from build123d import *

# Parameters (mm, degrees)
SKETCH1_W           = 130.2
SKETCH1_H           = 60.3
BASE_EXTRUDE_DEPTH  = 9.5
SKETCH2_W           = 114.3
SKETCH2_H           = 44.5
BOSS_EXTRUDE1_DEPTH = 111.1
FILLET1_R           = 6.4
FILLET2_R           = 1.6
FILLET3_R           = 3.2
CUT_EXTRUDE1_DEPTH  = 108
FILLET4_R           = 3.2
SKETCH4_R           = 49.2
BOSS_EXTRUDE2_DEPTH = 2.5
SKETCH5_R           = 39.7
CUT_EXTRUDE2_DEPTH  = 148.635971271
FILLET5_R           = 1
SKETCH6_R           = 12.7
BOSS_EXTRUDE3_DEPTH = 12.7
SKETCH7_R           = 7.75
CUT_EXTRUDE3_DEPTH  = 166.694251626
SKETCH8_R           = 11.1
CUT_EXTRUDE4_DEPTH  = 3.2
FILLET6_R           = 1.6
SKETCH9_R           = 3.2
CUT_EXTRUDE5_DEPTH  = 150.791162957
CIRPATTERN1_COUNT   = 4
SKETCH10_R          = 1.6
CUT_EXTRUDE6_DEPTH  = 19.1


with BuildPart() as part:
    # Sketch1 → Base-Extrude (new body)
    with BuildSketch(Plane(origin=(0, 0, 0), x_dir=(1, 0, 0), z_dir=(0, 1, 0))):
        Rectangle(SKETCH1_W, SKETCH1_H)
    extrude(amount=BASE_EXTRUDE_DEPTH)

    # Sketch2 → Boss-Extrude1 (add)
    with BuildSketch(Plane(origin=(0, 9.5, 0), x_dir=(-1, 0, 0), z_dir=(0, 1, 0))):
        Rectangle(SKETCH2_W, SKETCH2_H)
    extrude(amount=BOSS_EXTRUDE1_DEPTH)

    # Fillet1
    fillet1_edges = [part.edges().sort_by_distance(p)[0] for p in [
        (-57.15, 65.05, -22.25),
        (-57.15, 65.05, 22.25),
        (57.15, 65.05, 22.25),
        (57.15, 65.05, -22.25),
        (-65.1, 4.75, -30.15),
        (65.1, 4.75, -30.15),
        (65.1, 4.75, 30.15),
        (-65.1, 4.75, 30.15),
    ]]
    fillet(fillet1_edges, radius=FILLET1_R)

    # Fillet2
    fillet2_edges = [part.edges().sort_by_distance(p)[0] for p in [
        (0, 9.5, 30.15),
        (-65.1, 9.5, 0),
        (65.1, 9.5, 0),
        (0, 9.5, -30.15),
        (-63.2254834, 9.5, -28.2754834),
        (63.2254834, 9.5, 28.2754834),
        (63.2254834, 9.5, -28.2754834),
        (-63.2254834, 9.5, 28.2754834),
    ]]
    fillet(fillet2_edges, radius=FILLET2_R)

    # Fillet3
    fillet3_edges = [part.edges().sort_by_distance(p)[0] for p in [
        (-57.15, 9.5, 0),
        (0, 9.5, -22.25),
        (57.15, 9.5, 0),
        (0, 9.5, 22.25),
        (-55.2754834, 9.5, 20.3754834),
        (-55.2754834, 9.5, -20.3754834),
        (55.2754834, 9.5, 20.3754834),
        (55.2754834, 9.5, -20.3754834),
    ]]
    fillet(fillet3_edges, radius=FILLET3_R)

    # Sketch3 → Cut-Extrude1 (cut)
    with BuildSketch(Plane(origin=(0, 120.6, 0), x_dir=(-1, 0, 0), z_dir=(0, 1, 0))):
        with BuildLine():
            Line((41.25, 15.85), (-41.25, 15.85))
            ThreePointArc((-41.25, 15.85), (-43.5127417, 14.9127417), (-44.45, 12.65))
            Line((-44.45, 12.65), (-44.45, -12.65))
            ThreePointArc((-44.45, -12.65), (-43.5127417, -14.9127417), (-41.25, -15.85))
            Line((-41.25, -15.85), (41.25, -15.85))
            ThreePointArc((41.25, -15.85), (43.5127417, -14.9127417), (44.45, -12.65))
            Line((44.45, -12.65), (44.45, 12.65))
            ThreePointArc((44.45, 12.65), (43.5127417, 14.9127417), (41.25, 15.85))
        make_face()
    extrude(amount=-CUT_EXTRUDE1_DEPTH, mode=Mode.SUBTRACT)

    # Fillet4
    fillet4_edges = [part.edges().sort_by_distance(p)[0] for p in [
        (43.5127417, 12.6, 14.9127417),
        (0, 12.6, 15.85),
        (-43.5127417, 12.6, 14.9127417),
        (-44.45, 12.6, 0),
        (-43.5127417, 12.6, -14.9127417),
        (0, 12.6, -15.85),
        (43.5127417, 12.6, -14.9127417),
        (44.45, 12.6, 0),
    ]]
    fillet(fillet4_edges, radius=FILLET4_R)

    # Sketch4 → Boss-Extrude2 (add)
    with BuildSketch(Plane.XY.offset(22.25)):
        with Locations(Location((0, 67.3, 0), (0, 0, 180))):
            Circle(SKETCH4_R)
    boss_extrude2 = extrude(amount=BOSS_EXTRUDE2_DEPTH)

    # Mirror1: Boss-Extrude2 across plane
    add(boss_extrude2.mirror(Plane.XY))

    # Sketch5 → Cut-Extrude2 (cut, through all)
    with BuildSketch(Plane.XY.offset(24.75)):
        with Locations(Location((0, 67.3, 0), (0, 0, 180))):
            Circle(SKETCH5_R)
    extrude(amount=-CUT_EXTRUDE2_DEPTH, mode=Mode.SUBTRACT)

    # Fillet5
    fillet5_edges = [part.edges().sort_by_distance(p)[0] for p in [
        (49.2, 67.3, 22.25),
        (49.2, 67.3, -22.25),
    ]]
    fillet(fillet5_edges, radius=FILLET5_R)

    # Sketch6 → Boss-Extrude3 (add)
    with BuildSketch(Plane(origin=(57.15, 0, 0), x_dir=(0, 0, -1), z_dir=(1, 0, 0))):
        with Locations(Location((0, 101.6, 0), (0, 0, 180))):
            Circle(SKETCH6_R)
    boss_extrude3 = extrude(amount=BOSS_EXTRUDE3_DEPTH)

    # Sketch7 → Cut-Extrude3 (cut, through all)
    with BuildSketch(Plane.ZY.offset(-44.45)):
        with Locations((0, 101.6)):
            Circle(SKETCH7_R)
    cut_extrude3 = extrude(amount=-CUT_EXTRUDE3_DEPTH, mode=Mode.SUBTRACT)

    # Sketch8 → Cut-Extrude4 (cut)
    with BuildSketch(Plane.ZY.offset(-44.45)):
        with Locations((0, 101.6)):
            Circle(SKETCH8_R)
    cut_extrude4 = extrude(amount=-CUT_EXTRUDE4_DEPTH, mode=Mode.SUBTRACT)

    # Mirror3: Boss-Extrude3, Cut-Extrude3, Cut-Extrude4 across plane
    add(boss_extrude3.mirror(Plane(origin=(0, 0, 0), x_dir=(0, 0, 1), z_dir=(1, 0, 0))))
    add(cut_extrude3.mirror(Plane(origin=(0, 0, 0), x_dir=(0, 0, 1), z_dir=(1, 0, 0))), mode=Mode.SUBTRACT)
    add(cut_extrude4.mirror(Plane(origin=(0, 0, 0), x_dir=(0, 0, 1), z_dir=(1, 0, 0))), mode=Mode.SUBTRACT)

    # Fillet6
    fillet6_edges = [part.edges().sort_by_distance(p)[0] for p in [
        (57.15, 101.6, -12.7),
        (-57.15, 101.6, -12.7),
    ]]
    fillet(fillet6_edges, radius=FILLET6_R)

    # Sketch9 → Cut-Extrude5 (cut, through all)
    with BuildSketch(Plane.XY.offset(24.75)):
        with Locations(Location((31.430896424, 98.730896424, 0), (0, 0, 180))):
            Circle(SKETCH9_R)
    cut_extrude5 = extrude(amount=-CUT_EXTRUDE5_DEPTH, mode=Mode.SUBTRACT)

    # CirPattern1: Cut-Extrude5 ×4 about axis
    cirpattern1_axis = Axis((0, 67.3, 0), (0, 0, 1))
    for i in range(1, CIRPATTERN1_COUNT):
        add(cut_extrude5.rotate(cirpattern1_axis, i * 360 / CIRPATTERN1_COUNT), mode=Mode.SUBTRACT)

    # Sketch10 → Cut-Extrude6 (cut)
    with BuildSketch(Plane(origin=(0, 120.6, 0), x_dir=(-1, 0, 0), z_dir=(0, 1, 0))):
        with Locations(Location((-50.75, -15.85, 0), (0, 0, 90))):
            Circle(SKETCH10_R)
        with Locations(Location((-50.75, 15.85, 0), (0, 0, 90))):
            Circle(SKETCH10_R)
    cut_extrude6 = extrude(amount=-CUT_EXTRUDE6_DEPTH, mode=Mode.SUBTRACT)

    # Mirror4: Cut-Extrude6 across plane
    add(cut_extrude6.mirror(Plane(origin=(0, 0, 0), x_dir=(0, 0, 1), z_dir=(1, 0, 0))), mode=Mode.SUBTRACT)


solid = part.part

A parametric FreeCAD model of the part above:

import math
import FreeCAD as App
import Part
import Sketcher
from FreeCAD import Vector
Q = App.Units.Quantity


def edges_at(feature, points):
    """Names of the edges that pass closest to the given points."""
    edges = feature.Shape.Edges
    near = lambda p: min(range(len(edges)), key=lambda i: edges[i].distToShape(Part.Vertex(*p))[0])
    return sorted({f"Edge{near(p) + 1}" for p in points})

doc = App.newDocument("Part")
body = doc.addObject("PartDesign::Body", "Body")

# Sketch on XZ plane
sketch1 = body.newObject("Sketcher::SketchObject", "Sketch")
sketch1.AttachmentSupport = (doc.getObject("XZ_Plane"), [""])
sketch1.MapMode = "FlatFace"
sketch1.addGeometry(Part.LineSegment(Vector(-65.1, -30.15, 0), Vector(-65.1, 30.15, 0)), False)
sketch1.addGeometry(Part.LineSegment(Vector(-65.1, 30.15, 0), Vector(65.1, 30.15, 0)), False)
sketch1.addGeometry(Part.LineSegment(Vector(65.1, 30.15, 0), Vector(65.1, -30.15, 0)), False)
sketch1.addGeometry(Part.LineSegment(Vector(65.1, -30.15, 0), Vector(-65.1, -30.15, 0)), False)
sketch1.addConstraint(Sketcher.Constraint("Coincident", 0, 2, 1, 1))
sketch1.addConstraint(Sketcher.Constraint("Coincident", 1, 2, 2, 1))
sketch1.addConstraint(Sketcher.Constraint("Coincident", 2, 2, 3, 1))
sketch1.addConstraint(Sketcher.Constraint("Coincident", 3, 2, 0, 1))
sketch1.addConstraint(Sketcher.Constraint("Vertical", 0))
sketch1.addConstraint(Sketcher.Constraint("Horizontal", 1))
sketch1.addConstraint(Sketcher.Constraint("Vertical", 2))
sketch1.addConstraint(Sketcher.Constraint("Horizontal", 3))
sketch1.addConstraint(Sketcher.Constraint("Symmetric", 0, 2, 2, 2, -1, 1))
sketch1.addConstraint(Sketcher.Constraint("DistanceX", 1, 1, 1, 2, Q("130.2 mm")))
sketch1.addConstraint(Sketcher.Constraint("DistanceY", 0, 1, 0, 2, Q("60.3 mm")))
pad1 = body.newObject("PartDesign::Pad", "Pad")
pad1.Profile = sketch1
pad1.Length = 9.5
pad1.Reversed = True

# Sketch on XZ plane
sketch2 = body.newObject("Sketcher::SketchObject", "Sketch001")
sketch2.AttachmentSupport = (doc.getObject("XZ_Plane"), [""])
sketch2.MapMode = "FlatFace"
sketch2.AttachmentOffset = App.Placement(Vector(0, 0, -9.5), App.Rotation())
sketch2.addGeometry(Part.LineSegment(Vector(57.15, 22.25, 0), Vector(57.15, -22.25, 0)), False)
sketch2.addGeometry(Part.LineSegment(Vector(57.15, -22.25, 0), Vector(-57.15, -22.25, 0)), False)
sketch2.addGeometry(Part.LineSegment(Vector(-57.15, -22.25, 0), Vector(-57.15, 22.25, 0)), False)
sketch2.addGeometry(Part.LineSegment(Vector(-57.15, 22.25, 0), Vector(57.15, 22.25, 0)), False)
sketch2.addConstraint(Sketcher.Constraint("Coincident", 0, 2, 1, 1))
sketch2.addConstraint(Sketcher.Constraint("Coincident", 1, 2, 2, 1))
sketch2.addConstraint(Sketcher.Constraint("Coincident", 2, 2, 3, 1))
sketch2.addConstraint(Sketcher.Constraint("Coincident", 3, 2, 0, 1))
sketch2.addConstraint(Sketcher.Constraint("Vertical", 0))
sketch2.addConstraint(Sketcher.Constraint("Horizontal", 1))
sketch2.addConstraint(Sketcher.Constraint("Vertical", 2))
sketch2.addConstraint(Sketcher.Constraint("Horizontal", 3))
sketch2.addConstraint(Sketcher.Constraint("Symmetric", 0, 2, 2, 2, -1, 1))
sketch2.addConstraint(Sketcher.Constraint("DistanceX", 1, 2, 1, 1, Q("114.3 mm")))
sketch2.addConstraint(Sketcher.Constraint("DistanceY", 0, 2, 0, 1, Q("44.5 mm")))
pad2 = body.newObject("PartDesign::Pad", "Pad001")
pad2.Profile = sketch2
pad2.Length = 111.1
pad2.Reversed = True
doc.recompute()

fillet = body.newObject("PartDesign::Fillet", "Fillet")
fillet.Base = (pad2, edges_at(pad2, [
    (-57.15, 65.05, -22.25),
    (-57.15, 65.05, 22.25),
    (57.15, 65.05, 22.25),
    (57.15, 65.05, -22.25),
    (-65.1, 4.75, -30.15),
    (65.1, 4.75, -30.15),
    (65.1, 4.75, 30.15),
    (-65.1, 4.75, 30.15),
]))
fillet.Radius = 6.4
doc.recompute()

fillet2 = body.newObject("PartDesign::Fillet", "Fillet001")
fillet2.Base = (fillet, edges_at(fillet, [
    (0, 9.5, 30.15),
    (-65.1, 9.5, 0),
    (65.1, 9.5, 0),
    (0, 9.5, -30.15),
    (-63.225, 9.5, -28.275),
    (63.225, 9.5, 28.275),
    (63.225, 9.5, -28.275),
    (-63.225, 9.5, 28.275),
]))
fillet2.Radius = 1.6
doc.recompute()

fillet3 = body.newObject("PartDesign::Fillet", "Fillet002")
fillet3.Base = (fillet2, edges_at(fillet2, [
    (-57.15, 9.5, 0),
    (0, 9.5, -22.25),
    (57.15, 9.5, 0),
    (0, 9.5, 22.25),
    (-55.275, 9.5, 20.375),
    (-55.275, 9.5, -20.375),
    (55.275, 9.5, 20.375),
    (55.275, 9.5, -20.375),
]))
fillet3.Radius = 3.2

# Sketch on XZ plane
sketch3 = body.newObject("Sketcher::SketchObject", "Sketch002")
sketch3.AttachmentSupport = (doc.getObject("XZ_Plane"), [""])
sketch3.MapMode = "FlatFace"
sketch3.AttachmentOffset = App.Placement(Vector(0, 0, -120.6), App.Rotation())
sketch3.addGeometry(Part.LineSegment(Vector(-41.25, 15.85, 0), Vector(41.25, 15.85, 0)), False)
sketch3.addGeometry(Part.ArcOfCircle(Part.Circle(Vector(41.25, 12.65, 0), Vector(0, 0, 1), 3.2), math.radians(0), math.radians(90)), False)
sketch3.addGeometry(Part.LineSegment(Vector(44.45, 12.65, 0), Vector(44.45, -12.65, 0)), False)
sketch3.addGeometry(Part.ArcOfCircle(Part.Circle(Vector(41.25, -12.65, 0), Vector(0, 0, 1), 3.2), math.radians(-90), math.radians(0)), False)
sketch3.addGeometry(Part.LineSegment(Vector(41.25, -15.85, 0), Vector(-41.25, -15.85, 0)), False)
sketch3.addGeometry(Part.ArcOfCircle(Part.Circle(Vector(-41.25, -12.65, 0), Vector(0, 0, 1), 3.2), math.radians(180), math.radians(270)), False)
sketch3.addGeometry(Part.LineSegment(Vector(-44.45, -12.65, 0), Vector(-44.45, 12.65, 0)), False)
sketch3.addGeometry(Part.ArcOfCircle(Part.Circle(Vector(-41.25, 12.65, 0), Vector(0, 0, 1), 3.2), math.radians(90), math.radians(180)), False)
sketch3.addConstraint(Sketcher.Constraint("Tangent", 0, 2, 1, 2))
sketch3.addConstraint(Sketcher.Constraint("Tangent", 1, 1, 2, 1))
sketch3.addConstraint(Sketcher.Constraint("Tangent", 2, 2, 3, 2))
sketch3.addConstraint(Sketcher.Constraint("Tangent", 3, 1, 4, 1))
sketch3.addConstraint(Sketcher.Constraint("Tangent", 4, 2, 5, 2))
sketch3.addConstraint(Sketcher.Constraint("Tangent", 5, 1, 6, 1))
sketch3.addConstraint(Sketcher.Constraint("Tangent", 6, 2, 7, 2))
sketch3.addConstraint(Sketcher.Constraint("Tangent", 7, 1, 0, 1))
sketch3.addConstraint(Sketcher.Constraint("Horizontal", 0))
sketch3.addConstraint(Sketcher.Constraint("Vertical", 2))
sketch3.addConstraint(Sketcher.Constraint("Horizontal", 4))
sketch3.addConstraint(Sketcher.Constraint("Vertical", 6))
sketch3.addConstraint(Sketcher.Constraint("Equal", 1, 3))
sketch3.addConstraint(Sketcher.Constraint("Equal", 3, 5))
sketch3.addConstraint(Sketcher.Constraint("Equal", 5, 7))
sketch3.addConstraint(Sketcher.Constraint("Symmetric", 1, 3, 5, 3, -1, 1))
sketch3.addConstraint(Sketcher.Constraint("Radius", 1, Q("3.2 mm")))
sketch3.addConstraint(Sketcher.Constraint("DistanceX", 0, 1, 0, 2, Q("82.5 mm")))
sketch3.addConstraint(Sketcher.Constraint("DistanceY", 2, 2, 2, 1, Q("25.3 mm")))
pocket1 = body.newObject("PartDesign::Pocket", "Pocket")
pocket1.Profile = sketch3
pocket1.Length = 108
pocket1.Reversed = True
doc.recompute()

fillet4 = body.newObject("PartDesign::Fillet", "Fillet003")
fillet4.Base = (pocket1, edges_at(pocket1, [
    (43.513, 12.6, 14.913),
    (0, 12.6, 15.85),
    (-43.513, 12.6, 14.913),
    (-44.45, 12.6, 0),
    (-43.513, 12.6, -14.913),
    (0, 12.6, -15.85),
    (43.513, 12.6, -14.913),
    (44.45, 12.6, 0),
]))
fillet4.Radius = 3.2

# Sketch on XY plane
sketch4 = body.newObject("Sketcher::SketchObject", "Sketch003")
sketch4.AttachmentSupport = (doc.getObject("XY_Plane"), [""])
sketch4.MapMode = "FlatFace"
sketch4.AttachmentOffset = App.Placement(Vector(0, 0, 22.25), App.Rotation())
sketch4.addGeometry(Part.Circle(Vector(0, 67.3, 0), Vector(0, 0, 1), 49.2), False)
sketch4.addConstraint(Sketcher.Constraint("PointOnObject", 0, 3, -2))
sketch4.addConstraint(Sketcher.Constraint("Diameter", 0, Q("98.4 mm")))
sketch4.addConstraint(Sketcher.Constraint("DistanceY", -1, 1, 0, 3, Q("67.3 mm")))
pad3 = body.newObject("PartDesign::Pad", "Pad002")
pad3.Profile = sketch4
pad3.Length = 2.5
doc.recompute()

mirrored = body.newObject("PartDesign::Mirrored", "Mirrored")
mirrored.Originals = [pad3]
mirrored.MirrorPlane = (doc.getObject("XY_Plane"), [""])
body.Tip = mirrored

# Sketch on XY plane
sketch5 = body.newObject("Sketcher::SketchObject", "Sketch004")
sketch5.AttachmentSupport = (doc.getObject("XY_Plane"), [""])
sketch5.MapMode = "FlatFace"
sketch5.AttachmentOffset = App.Placement(Vector(0, 0, 24.75), App.Rotation())
sketch5.addGeometry(Part.Circle(Vector(0, 67.3, 0), Vector(0, 0, 1), 39.7), False)
sketch5.addConstraint(Sketcher.Constraint("PointOnObject", 0, 3, -2))
sketch5.addConstraint(Sketcher.Constraint("Diameter", 0, Q("79.4 mm")))
sketch5.addConstraint(Sketcher.Constraint("DistanceY", -1, 1, 0, 3, Q("67.3 mm")))
pocket2 = body.newObject("PartDesign::Pocket", "Pocket001")
pocket2.Profile = sketch5
pocket2.Type = "ThroughAll"
doc.recompute()

fillet5 = body.newObject("PartDesign::Fillet", "Fillet004")
fillet5.Base = (pocket2, edges_at(pocket2, [(49.2, 67.3, 22.25), (49.2, 67.3, -22.25)]))
fillet5.Radius = 1

# Sketch on YZ plane
sketch6 = body.newObject("Sketcher::SketchObject", "Sketch005")
sketch6.AttachmentSupport = (doc.getObject("YZ_Plane"), [""])
sketch6.MapMode = "FlatFace"
sketch6.AttachmentOffset = App.Placement(Vector(0, 0, 57.15), App.Rotation())
sketch6.addGeometry(Part.Circle(Vector(101.6, 0, 0), Vector(0, 0, 1), 12.7), False)
sketch6.addConstraint(Sketcher.Constraint("PointOnObject", 0, 3, -1))
sketch6.addConstraint(Sketcher.Constraint("Diameter", 0, Q("25.4 mm")))
sketch6.addConstraint(Sketcher.Constraint("DistanceX", -1, 1, 0, 3, Q("101.6 mm")))
pad4 = body.newObject("PartDesign::Pad", "Pad003")
pad4.Profile = sketch6
pad4.Length = 12.7

# Sketch on YZ plane
sketch7 = body.newObject("Sketcher::SketchObject", "Sketch006")
sketch7.AttachmentSupport = (doc.getObject("YZ_Plane"), [""])
sketch7.MapMode = "FlatFace"
sketch7.AttachmentOffset = App.Placement(Vector(0, 0, 44.45), App.Rotation())
sketch7.addGeometry(Part.Circle(Vector(101.6, 0, 0), Vector(0, 0, 1), 7.75), False)
sketch7.addConstraint(Sketcher.Constraint("PointOnObject", 0, 3, -1))
sketch7.addConstraint(Sketcher.Constraint("Diameter", 0, Q("15.5 mm")))
sketch7.addConstraint(Sketcher.Constraint("DistanceX", -1, 1, 0, 3, Q("101.6 mm")))
pocket3 = body.newObject("PartDesign::Pocket", "Pocket002")
pocket3.Profile = sketch7
pocket3.Type = "ThroughAll"
pocket3.Reversed = True

# Sketch on YZ plane
sketch8 = body.newObject("Sketcher::SketchObject", "Sketch007")
sketch8.AttachmentSupport = (doc.getObject("YZ_Plane"), [""])
sketch8.MapMode = "FlatFace"
sketch8.AttachmentOffset = App.Placement(Vector(0, 0, 44.45), App.Rotation())
sketch8.addGeometry(Part.Circle(Vector(101.6, 0, 0), Vector(0, 0, 1), 11.1), False)
sketch8.addConstraint(Sketcher.Constraint("PointOnObject", 0, 3, -1))
sketch8.addConstraint(Sketcher.Constraint("Diameter", 0, Q("22.2 mm")))
sketch8.addConstraint(Sketcher.Constraint("DistanceX", -1, 1, 0, 3, Q("101.6 mm")))
pocket4 = body.newObject("PartDesign::Pocket", "Pocket003")
pocket4.Profile = sketch8
pocket4.Length = 3.2
pocket4.Reversed = True
doc.recompute()

mirrored2 = body.newObject("PartDesign::Mirrored", "Mirrored001")
mirrored2.Originals = [pad4, pocket3, pocket4]
mirrored2.MirrorPlane = (doc.getObject("YZ_Plane"), [""])
body.Tip = mirrored2
doc.recompute()

fillet6 = body.newObject("PartDesign::Fillet", "Fillet005")
fillet6.Base = (mirrored2, edges_at(mirrored2, [(57.15, 101.6, -12.7), (-57.15, 101.6, -12.7)]))
fillet6.Radius = 1.6

# Sketch on XY plane
sketch9 = body.newObject("Sketcher::SketchObject", "Sketch008")
sketch9.AttachmentSupport = (doc.getObject("XY_Plane"), [""])
sketch9.MapMode = "FlatFace"
sketch9.AttachmentOffset = App.Placement(Vector(0, 0, 24.75), App.Rotation())
sketch9.addGeometry(Part.Circle(Vector(31.430896, 98.730896, 0), Vector(0, 0, 1), 3.2), False)
sketch9.addConstraint(Sketcher.Constraint("Diameter", 0, Q("6.4 mm")))
sketch9.addConstraint(Sketcher.Constraint("DistanceX", -1, 1, 0, 3, Q("31.430896 mm")))
sketch9.addConstraint(Sketcher.Constraint("DistanceY", -1, 1, 0, 3, Q("98.730896 mm")))
pocket5 = body.newObject("PartDesign::Pocket", "Pocket004")
pocket5.Profile = sketch9
pocket5.Type = "ThroughAll"
doc.recompute()

datumline = body.newObject("PartDesign::Line", "DatumLine")
datumline.Placement = App.Placement(Vector(0, 67.3, 0), App.Rotation(Vector(0, 0, 1), Vector(0, 0, 1)))
polarpattern = body.newObject("PartDesign::PolarPattern", "PolarPattern")
polarpattern.Originals = [pocket5]
polarpattern.Axis = (datumline, [""])
polarpattern.Angle = 360
polarpattern.Occurrences = 4
body.Tip = polarpattern

# Sketch on XZ plane
sketch10 = body.newObject("Sketcher::SketchObject", "Sketch009")
sketch10.AttachmentSupport = (doc.getObject("XZ_Plane"), [""])
sketch10.MapMode = "FlatFace"
sketch10.AttachmentOffset = App.Placement(Vector(0, 0, -120.6), App.Rotation())
sketch10.addGeometry(Part.Circle(Vector(50.75, -15.85, 0), Vector(0, 0, 1), 1.6), False)
sketch10.addGeometry(Part.Circle(Vector(50.75, 15.85, 0), Vector(0, 0, 1), 1.6), False)
sketch10.addConstraint(Sketcher.Constraint("Equal", 0, 1))
sketch10.addConstraint(Sketcher.Constraint("Symmetric", 0, 3, 1, 3, -1))
sketch10.addConstraint(Sketcher.Constraint("Diameter", 0, Q("3.2 mm")))
sketch10.addConstraint(Sketcher.Constraint("DistanceY", 0, 3, 1, 3, Q("31.7 mm")))
sketch10.addConstraint(Sketcher.Constraint("DistanceX", -1, 1, 0, 3, Q("50.75 mm")))
pocket6 = body.newObject("PartDesign::Pocket", "Pocket005")
pocket6.Profile = sketch10
pocket6.Length = 19.1
pocket6.Reversed = True
doc.recompute()

mirrored3 = body.newObject("PartDesign::Mirrored", "Mirrored002")
mirrored3.Originals = [pocket6]
mirrored3.MirrorPlane = (doc.getObject("YZ_Plane"), [""])
body.Tip = mirrored3

doc.recompute()
